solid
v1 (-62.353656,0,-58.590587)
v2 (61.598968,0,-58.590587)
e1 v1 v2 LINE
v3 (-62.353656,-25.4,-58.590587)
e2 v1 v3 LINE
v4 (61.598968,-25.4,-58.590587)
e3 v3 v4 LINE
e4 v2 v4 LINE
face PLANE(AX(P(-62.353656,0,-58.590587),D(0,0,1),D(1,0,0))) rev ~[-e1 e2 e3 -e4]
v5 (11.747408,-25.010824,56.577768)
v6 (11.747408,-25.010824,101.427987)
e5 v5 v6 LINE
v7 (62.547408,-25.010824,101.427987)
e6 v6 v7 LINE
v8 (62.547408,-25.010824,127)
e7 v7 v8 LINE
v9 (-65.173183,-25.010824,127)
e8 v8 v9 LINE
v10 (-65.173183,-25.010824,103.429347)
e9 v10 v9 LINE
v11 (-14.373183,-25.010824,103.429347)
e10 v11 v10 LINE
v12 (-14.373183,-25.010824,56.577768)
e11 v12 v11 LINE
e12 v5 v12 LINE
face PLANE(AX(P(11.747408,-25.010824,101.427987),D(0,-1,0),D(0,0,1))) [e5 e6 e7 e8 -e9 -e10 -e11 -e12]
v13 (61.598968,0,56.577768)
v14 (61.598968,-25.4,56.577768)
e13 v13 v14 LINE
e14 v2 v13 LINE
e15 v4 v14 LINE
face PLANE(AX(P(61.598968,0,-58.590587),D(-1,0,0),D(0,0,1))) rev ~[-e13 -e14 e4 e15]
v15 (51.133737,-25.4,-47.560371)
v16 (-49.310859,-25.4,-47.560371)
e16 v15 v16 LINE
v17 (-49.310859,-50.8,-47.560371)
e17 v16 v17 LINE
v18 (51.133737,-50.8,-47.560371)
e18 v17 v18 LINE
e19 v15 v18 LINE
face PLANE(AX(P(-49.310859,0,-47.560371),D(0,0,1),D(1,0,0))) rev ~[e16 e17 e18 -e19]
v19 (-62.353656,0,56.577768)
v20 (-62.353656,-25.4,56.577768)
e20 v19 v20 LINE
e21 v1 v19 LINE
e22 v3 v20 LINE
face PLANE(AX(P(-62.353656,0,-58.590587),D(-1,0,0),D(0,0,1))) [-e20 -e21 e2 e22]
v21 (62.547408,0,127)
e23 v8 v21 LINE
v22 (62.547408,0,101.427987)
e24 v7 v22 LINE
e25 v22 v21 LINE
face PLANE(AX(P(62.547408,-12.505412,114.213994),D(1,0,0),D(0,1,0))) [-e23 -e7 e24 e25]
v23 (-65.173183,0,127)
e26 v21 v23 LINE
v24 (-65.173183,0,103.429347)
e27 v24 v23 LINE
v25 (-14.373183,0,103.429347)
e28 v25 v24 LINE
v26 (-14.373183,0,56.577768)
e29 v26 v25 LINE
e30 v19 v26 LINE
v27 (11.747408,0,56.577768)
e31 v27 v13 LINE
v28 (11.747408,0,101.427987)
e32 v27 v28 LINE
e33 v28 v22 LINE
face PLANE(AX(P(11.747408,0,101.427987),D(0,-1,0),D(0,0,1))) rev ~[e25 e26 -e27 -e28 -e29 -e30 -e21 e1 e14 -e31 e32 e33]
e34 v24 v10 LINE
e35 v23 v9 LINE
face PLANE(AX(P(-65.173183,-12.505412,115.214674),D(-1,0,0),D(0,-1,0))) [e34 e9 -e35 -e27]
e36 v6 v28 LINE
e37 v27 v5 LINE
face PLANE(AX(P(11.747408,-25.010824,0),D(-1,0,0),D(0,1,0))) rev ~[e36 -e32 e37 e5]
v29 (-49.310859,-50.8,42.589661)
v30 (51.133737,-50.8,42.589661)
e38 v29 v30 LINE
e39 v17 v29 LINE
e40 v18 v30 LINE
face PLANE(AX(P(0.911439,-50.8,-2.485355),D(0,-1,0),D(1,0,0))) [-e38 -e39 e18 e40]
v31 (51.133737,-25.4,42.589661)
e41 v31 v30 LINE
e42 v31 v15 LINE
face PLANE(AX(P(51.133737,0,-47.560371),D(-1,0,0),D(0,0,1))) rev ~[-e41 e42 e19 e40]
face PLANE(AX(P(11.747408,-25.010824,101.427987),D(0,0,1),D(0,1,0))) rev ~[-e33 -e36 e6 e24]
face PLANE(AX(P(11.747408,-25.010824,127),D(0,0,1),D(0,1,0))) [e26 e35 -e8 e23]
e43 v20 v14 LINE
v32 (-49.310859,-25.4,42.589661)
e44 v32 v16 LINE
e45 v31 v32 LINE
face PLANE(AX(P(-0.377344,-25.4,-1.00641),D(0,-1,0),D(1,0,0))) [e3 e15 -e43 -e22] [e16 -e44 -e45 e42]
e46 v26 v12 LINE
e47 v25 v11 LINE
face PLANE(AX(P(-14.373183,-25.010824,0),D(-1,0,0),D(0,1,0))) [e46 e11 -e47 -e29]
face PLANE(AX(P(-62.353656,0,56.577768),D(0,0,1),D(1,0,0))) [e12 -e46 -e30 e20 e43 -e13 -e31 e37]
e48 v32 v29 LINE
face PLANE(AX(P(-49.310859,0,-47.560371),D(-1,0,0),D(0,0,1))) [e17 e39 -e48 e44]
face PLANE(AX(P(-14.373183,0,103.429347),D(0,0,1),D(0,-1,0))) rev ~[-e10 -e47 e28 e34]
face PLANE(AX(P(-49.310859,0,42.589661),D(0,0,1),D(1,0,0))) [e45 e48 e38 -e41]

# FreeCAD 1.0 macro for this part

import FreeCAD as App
import Part
import Sketcher
Q = App.Units.Quantity

doc = App.newDocument("Part")
body = doc.addObject("PartDesign::Body", "Body")

# Sketch on XZ plane
sketch1 = body.newObject("Sketcher::SketchObject", "Sketch")
sketch1.AttachmentSupport = (doc.getObject("XZ_Plane"), [""])
sketch1.MapMode = "FlatFace"
sketch1.addGeometry(Part.LineSegment(App.Vector(-62, 57, 0), App.Vector(-62, -59, 0)), False)
sketch1.addGeometry(Part.LineSegment(App.Vector(-62, -59, 0), App.Vector(62, -59, 0)), False)
sketch1.addGeometry(Part.LineSegment(App.Vector(62, -59, 0), App.Vector(62, 57, 0)), False)
sketch1.addGeometry(Part.LineSegment(App.Vector(62, 57, 0), App.Vector(-62, 57, 0)), False)
sketch1.addConstraint(Sketcher.Constraint("Coincident", 0, 2, 1, 1))
sketch1.addConstraint(Sketcher.Constraint("Coincident", 1, 2, 2, 1))
sketch1.addConstraint(Sketcher.Constraint("Coincident", 2, 2, 3, 1))
sketch1.addConstraint(Sketcher.Constraint("Coincident", 3, 2, 0, 1))
sketch1.addConstraint(Sketcher.Constraint("Vertical", 0))
sketch1.addConstraint(Sketcher.Constraint("Horizontal", 1))
sketch1.addConstraint(Sketcher.Constraint("Vertical", 2))
sketch1.addConstraint(Sketcher.Constraint("Horizontal", 3))
sketch1.addConstraint(Sketcher.Constraint("DistanceX", 1, 1, 1, 2, Q("123.952623 mm")))
sketch1.addConstraint(Sketcher.Constraint("DistanceY", 0, 2, 0, 1, Q("115.168355 mm")))
sketch1.addConstraint(Sketcher.Constraint("DistanceY", -1, 1, 2, 2, Q("56.577768 mm")))
sketch1.addConstraint(Sketcher.Constraint("DistanceX", 0, 2, -1, 1, Q("62.353656 mm")))
pad1 = body.newObject("PartDesign::Pad", "Pad")
pad1.Profile = sketch1
pad1.Length = Q("1 in")

# Sketch on XZ plane
sketch2 = body.newObject("Sketcher::SketchObject", "Sketch001")
sketch2.AttachmentSupport = (doc.getObject("XZ_Plane"), [""])
sketch2.MapMode = "FlatFace"
sketch2.addGeometry(Part.LineSegment(App.Vector(-49, 43, 0), App.Vector(-49, -48, 0)), False)
sketch2.addGeometry(Part.LineSegment(App.Vector(-49, -48, 0), App.Vector(51, -48, 0)), False)
sketch2.addGeometry(Part.LineSegment(App.Vector(51, -48, 0), App.Vector(51, 43, 0)), False)
sketch2.addGeometry(Part.LineSegment(App.Vector(51, 43, 0), App.Vector(-49, 43, 0)), False)
sketch2.addConstraint(Sketcher.Constraint("Coincident", 0, 2, 1, 1))
sketch2.addConstraint(Sketcher.Constraint("Coincident", 1, 2, 2, 1))
sketch2.addConstraint(Sketcher.Constraint("Coincident", 2, 2, 3, 1))
sketch2.addConstraint(Sketcher.Constraint("Coincident", 3, 2, 0, 1))
sketch2.addConstraint(Sketcher.Constraint("Vertical", 0))
sketch2.addConstraint(Sketcher.Constraint("Horizontal", 1))
sketch2.addConstraint(Sketcher.Constraint("Vertical", 2))
sketch2.addConstraint(Sketcher.Constraint("Horizontal", 3))
sketch2.addConstraint(Sketcher.Constraint("DistanceX", 1, 1, 1, 2, Q("100.444596 mm")))
sketch2.addConstraint(Sketcher.Constraint("DistanceY", 0, 2, 0, 1, Q("90.150032 mm")))
sketch2.addConstraint(Sketcher.Constraint("DistanceX", 0, 2, -1, 1, Q("49.310859 mm")))
sketch2.addConstraint(Sketcher.Constraint("DistanceY", 0, 2, -1, 1, Q("47.560371 mm")))
pad2 = body.newObject("PartDesign::Pad", "Pad001")
pad2.Profile = sketch2
pad2.Length = Q("2 in")

# Sketch on XY plane
sketch3 = body.newObject("Sketcher::SketchObject", "Sketch002")
sketch3.AttachmentSupport = (doc.getObject("XY_Plane"), [""])
sketch3.MapMode = "FlatFace"
sketch3.addGeometry(Part.LineSegment(App.Vector(-14, 0, 0), App.Vector(-14, -25, 0)), False)
sketch3.addGeometry(Part.LineSegment(App.Vector(-14, -25, 0), App.Vector(12, -25, 0)), False)
sketch3.addGeometry(Part.LineSegment(App.Vector(12, -25, 0), App.Vector(12, 0, 0)), False)
sketch3.addGeometry(Part.LineSegment(App.Vector(12, 0, 0), App.Vector(-14, 0, 0)), False)
sketch3.addConstraint(Sketcher.Constraint("Coincident", 0, 2, 1, 1))
sketch3.addConstraint(Sketcher.Constraint("Coincident", 1, 2, 2, 1))
sketch3.addConstraint(Sketcher.Constraint("Coincident", 2, 2, 3, 1))
sketch3.addConstraint(Sketcher.Constraint("Coincident", 3, 2, 0, 1))
sketch3.addConstraint(Sketcher.Constraint("Vertical", 0))
sketch3.addConstraint(Sketcher.Constraint("Horizontal", 1))
sketch3.addConstraint(Sketcher.Constraint("Vertical", 2))
sketch3.addConstraint(Sketcher.Constraint("Horizontal", 3))
sketch3.addConstraint(Sketcher.Constraint("PointOnObject", 2, 2, -1))
sketch3.addConstraint(Sketcher.Constraint("DistanceX", 1, 1, 1, 2, Q("26.120591 mm")))
sketch3.addConstraint(Sketcher.Constraint("DistanceY", 0, 2, 0, 1, Q("25.010824 mm")))
sketch3.addConstraint(Sketcher.Constraint("DistanceX", 0, 2, -1, 1, Q("14.373183 mm")))
pad3 = body.newObject("PartDesign::Pad", "Pad002")
pad3.Profile = sketch3
pad3.Length = Q("5 in")

# Sketch on YZ plane
sketch4 = body.newObject("Sketcher::SketchObject", "Sketch003")
sketch4.AttachmentSupport = (doc.getObject("YZ_Plane"), [""])
sketch4.MapMode = "FlatFace"
sketch4.AttachmentOffset = App.Placement(App.Vector(0, 0, -14.373183), App.Rotation())
sketch4.addGeometry(Part.LineSegment(App.Vector(0, 127, 0), App.Vector(0, 103, 0)), False)
sketch4.addGeometry(Part.LineSegment(App.Vector(0, 103, 0), App.Vector(-25, 103, 0)), False)
sketch4.addGeometry(Part.LineSegment(App.Vector(-25, 103, 0), App.Vector(-25, 127, 0)), False)
sketch4.addGeometry(Part.LineSegment(App.Vector(-25, 127, 0), App.Vector(0, 127, 0)), False)
sketch4.addConstraint(Sketcher.Constraint("Coincident", 0, 2, 1, 1))
sketch4.addConstraint(Sketcher.Constraint("Coincident", 1, 2, 2, 1))
sketch4.addConstraint(Sketcher.Constraint("Coincident", 2, 2, 3, 1))
sketch4.addConstraint(Sketcher.Constraint("Coincident", 3, 2, 0, 1))
sketch4.addConstraint(Sketcher.Constraint("Vertical", 0))
sketch4.addConstraint(Sketcher.Constraint("Horizontal", 1))
sketch4.addConstraint(Sketcher.Constraint("Vertical", 2))
sketch4.addConstraint(Sketcher.Constraint("Horizontal", 3))
sketch4.addConstraint(Sketcher.Constraint("PointOnObject", 0, 2, -2))
sketch4.addConstraint(Sketcher.Constraint("DistanceY", -1, 1, 2, 2, Q("5 in")))
sketch4.addConstraint(Sketcher.Constraint("DistanceX", 1, 2, 1, 1, Q("25.010824 mm")))
sketch4.addConstraint(Sketcher.Constraint("DistanceY", 0, 2, 0, 1, Q("23.570653 mm")))
pad4 = body.newObject("PartDesign::Pad", "Pad003")
pad4.Profile = sketch4
pad4.Length = Q("2 in")
pad4.Reversed = True

# Sketch on YZ plane
sketch5 = body.newObject("Sketcher::SketchObject", "Sketch004")
sketch5.AttachmentSupport = (doc.getObject("YZ_Plane"), [""])
sketch5.MapMode = "FlatFace"
sketch5.AttachmentOffset = App.Placement(App.Vector(0, 0, 11.747408), App.Rotation())
sketch5.addGeometry(Part.LineSegment(App.Vector(-25, 127, 0), App.Vector(-25, 101, 0)), False)
sketch5.addGeometry(Part.LineSegment(App.Vector(-25, 101, 0), App.Vector(0, 101, 0)), False)
sketch5.addGeometry(Part.LineSegment(App.Vector(0, 101, 0), App.Vector(0, 127, 0)), False)
sketch5.addGeometry(Part.LineSegment(App.Vector(0, 127, 0), App.Vector(-25, 127, 0)), False)
sketch5.addConstraint(Sketcher.Constraint("Coincident", 0, 2, 1, 1))
sketch5.addConstraint(Sketcher.Constraint("Coincident", 1, 2, 2, 1))
sketch5.addConstraint(Sketcher.Constraint("Coincident", 2, 2, 3, 1))
sketch5.addConstraint(Sketcher.Constraint("Coincident", 3, 2, 0, 1))
sketch5.addConstraint(Sketcher.Constraint("Vertical", 0))
sketch5.addConstraint(Sketcher.Constraint("Horizontal", 1))
sketch5.addConstraint(Sketcher.Constraint("Vertical", 2))
sketch5.addConstraint(Sketcher.Constraint("Horizontal", 3))
sketch5.addConstraint(Sketcher.Constraint("PointOnObject", 1, 2, -2))
sketch5.addConstraint(Sketcher.Constraint("DistanceY", -1, 1, 2, 2, Q("5 in")))
sketch5.addConstraint(Sketcher.Constraint("DistanceX", 1, 1, 1, 2, Q("25.010824 mm")))
sketch5.addConstraint(Sketcher.Constraint("DistanceY", 0, 2, 0, 1, Q("25.572013 mm")))
pad5 = body.newObject("PartDesign::Pad", "Pad004")
pad5.Profile = sketch5
pad5.Length = Q("2 in")

doc.recompute()
